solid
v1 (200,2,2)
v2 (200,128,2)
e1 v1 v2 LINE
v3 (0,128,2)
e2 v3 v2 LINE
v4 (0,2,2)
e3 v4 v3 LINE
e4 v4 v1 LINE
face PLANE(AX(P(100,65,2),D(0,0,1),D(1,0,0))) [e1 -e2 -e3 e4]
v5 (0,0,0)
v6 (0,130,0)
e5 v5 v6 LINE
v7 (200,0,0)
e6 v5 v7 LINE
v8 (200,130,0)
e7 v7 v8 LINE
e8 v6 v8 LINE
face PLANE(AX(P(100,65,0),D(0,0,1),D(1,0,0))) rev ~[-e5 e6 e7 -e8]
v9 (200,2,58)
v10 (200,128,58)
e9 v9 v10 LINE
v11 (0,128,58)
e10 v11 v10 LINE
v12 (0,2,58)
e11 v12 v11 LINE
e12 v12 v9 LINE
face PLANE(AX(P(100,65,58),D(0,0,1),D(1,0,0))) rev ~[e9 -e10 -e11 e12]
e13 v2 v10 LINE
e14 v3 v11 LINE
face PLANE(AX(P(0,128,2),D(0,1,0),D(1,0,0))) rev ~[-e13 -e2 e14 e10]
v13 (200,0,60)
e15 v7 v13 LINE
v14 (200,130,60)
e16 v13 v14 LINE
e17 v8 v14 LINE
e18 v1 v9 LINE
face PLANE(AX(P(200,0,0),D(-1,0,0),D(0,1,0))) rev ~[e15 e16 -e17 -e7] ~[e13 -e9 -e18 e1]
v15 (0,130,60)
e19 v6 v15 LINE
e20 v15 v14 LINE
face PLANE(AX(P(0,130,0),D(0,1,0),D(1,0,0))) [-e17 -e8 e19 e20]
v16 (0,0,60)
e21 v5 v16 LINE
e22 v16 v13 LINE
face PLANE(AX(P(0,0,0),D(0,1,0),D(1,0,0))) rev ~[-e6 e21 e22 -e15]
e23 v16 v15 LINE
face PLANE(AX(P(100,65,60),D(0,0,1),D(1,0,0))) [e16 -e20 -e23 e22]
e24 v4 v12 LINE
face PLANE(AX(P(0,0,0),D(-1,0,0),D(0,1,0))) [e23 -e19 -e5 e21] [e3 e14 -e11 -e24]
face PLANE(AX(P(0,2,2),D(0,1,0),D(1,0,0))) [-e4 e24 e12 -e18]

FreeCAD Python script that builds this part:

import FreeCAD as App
import Part
import Sketcher

V = App.Vector
Q = App.Units.Quantity


def add_polygon(sketch, points):
    """Adds a closed chain of lines whose ends are joined by coincident constraints."""
    first, n = sketch.GeometryCount, len(points)
    for a, b in zip(points, points[1:] + points[:1]):
        sketch.addGeometry(Part.LineSegment(App.Vector(*a, 0), App.Vector(*b, 0)), False)
    for i in range(n):
        sketch.addConstraint(Sketcher.Constraint("Coincident", first + i, 2, first + (i + 1) % n, 1))

doc = App.newDocument("Part")
body = doc.addObject("PartDesign::Body", "Body")

sketch1 = body.newObject("Sketcher::SketchObject", "Sketch")
sketch1.AttachmentSupport = (doc.getObject("XY_Plane"), [""])
sketch1.MapMode = "FlatFace"
sketch1.AttachmentOffset = App.Placement(V(0, 0, 2), App.Rotation())
add_polygon(sketch1, [(0, 128), (0, 2), (200, 2), (200, 128)])
sketch1.addConstraint(Sketcher.Constraint("Vertical", 0))
sketch1.addConstraint(Sketcher.Constraint("Horizontal", 1))
sketch1.addConstraint(Sketcher.Constraint("Vertical", 2))
sketch1.addConstraint(Sketcher.Constraint("Horizontal", 3))
sketch1.addConstraint(Sketcher.Constraint("PointOnObject", 0, 2, -2))
sketch1.addConstraint(Sketcher.Constraint("DistanceX", 1, 1, 1, 2, Q("200 mm")))
sketch1.addConstraint(Sketcher.Constraint("DistanceY", 0, 2, 0, 1, Q("126 mm")))
sketch1.addConstraint(Sketcher.Constraint("DistanceY", -1, 1, 0, 2, Q("2 mm")))
pad1 = body.newObject("PartDesign::Pad", "Pad")
pad1.Profile = sketch1
pad1.Length = 56
body2 = doc.addObject("PartDesign::Body", "Body001")

sketch2 = body2.newObject("Sketcher::SketchObject", "Sketch001")
sketch2.AttachmentSupport = (doc.getObject("XY_Plane001"), [""])
sketch2.MapMode = "FlatFace"
add_polygon(sketch2, [(0, 130), (0, 0), (200, 0), (200, 130)])
sketch2.addConstraint(Sketcher.Constraint("Vertical", 0))
sketch2.addConstraint(Sketcher.Constraint("Horizontal", 1))
sketch2.addConstraint(Sketcher.Constraint("Vertical", 2))
sketch2.addConstraint(Sketcher.Constraint("Horizontal", 3))
sketch2.addConstraint(Sketcher.Constraint("Coincident", 0, 2, -1, 1))
sketch2.addConstraint(Sketcher.Constraint("DistanceX", 1, 1, 1, 2, Q("200 mm")))
sketch2.addConstraint(Sketcher.Constraint("DistanceY", 0, 2, 0, 1, Q("130 mm")))
pad2 = body2.newObject("PartDesign::Pad", "Pad001")
pad2.Profile = sketch2
pad2.Length = 60
doc.recompute()

boolean = body2.newObject("PartDesign::Boolean", "Boolean")
boolean.Type = "Cut"
boolean.addObjects([body])

doc.recompute()
